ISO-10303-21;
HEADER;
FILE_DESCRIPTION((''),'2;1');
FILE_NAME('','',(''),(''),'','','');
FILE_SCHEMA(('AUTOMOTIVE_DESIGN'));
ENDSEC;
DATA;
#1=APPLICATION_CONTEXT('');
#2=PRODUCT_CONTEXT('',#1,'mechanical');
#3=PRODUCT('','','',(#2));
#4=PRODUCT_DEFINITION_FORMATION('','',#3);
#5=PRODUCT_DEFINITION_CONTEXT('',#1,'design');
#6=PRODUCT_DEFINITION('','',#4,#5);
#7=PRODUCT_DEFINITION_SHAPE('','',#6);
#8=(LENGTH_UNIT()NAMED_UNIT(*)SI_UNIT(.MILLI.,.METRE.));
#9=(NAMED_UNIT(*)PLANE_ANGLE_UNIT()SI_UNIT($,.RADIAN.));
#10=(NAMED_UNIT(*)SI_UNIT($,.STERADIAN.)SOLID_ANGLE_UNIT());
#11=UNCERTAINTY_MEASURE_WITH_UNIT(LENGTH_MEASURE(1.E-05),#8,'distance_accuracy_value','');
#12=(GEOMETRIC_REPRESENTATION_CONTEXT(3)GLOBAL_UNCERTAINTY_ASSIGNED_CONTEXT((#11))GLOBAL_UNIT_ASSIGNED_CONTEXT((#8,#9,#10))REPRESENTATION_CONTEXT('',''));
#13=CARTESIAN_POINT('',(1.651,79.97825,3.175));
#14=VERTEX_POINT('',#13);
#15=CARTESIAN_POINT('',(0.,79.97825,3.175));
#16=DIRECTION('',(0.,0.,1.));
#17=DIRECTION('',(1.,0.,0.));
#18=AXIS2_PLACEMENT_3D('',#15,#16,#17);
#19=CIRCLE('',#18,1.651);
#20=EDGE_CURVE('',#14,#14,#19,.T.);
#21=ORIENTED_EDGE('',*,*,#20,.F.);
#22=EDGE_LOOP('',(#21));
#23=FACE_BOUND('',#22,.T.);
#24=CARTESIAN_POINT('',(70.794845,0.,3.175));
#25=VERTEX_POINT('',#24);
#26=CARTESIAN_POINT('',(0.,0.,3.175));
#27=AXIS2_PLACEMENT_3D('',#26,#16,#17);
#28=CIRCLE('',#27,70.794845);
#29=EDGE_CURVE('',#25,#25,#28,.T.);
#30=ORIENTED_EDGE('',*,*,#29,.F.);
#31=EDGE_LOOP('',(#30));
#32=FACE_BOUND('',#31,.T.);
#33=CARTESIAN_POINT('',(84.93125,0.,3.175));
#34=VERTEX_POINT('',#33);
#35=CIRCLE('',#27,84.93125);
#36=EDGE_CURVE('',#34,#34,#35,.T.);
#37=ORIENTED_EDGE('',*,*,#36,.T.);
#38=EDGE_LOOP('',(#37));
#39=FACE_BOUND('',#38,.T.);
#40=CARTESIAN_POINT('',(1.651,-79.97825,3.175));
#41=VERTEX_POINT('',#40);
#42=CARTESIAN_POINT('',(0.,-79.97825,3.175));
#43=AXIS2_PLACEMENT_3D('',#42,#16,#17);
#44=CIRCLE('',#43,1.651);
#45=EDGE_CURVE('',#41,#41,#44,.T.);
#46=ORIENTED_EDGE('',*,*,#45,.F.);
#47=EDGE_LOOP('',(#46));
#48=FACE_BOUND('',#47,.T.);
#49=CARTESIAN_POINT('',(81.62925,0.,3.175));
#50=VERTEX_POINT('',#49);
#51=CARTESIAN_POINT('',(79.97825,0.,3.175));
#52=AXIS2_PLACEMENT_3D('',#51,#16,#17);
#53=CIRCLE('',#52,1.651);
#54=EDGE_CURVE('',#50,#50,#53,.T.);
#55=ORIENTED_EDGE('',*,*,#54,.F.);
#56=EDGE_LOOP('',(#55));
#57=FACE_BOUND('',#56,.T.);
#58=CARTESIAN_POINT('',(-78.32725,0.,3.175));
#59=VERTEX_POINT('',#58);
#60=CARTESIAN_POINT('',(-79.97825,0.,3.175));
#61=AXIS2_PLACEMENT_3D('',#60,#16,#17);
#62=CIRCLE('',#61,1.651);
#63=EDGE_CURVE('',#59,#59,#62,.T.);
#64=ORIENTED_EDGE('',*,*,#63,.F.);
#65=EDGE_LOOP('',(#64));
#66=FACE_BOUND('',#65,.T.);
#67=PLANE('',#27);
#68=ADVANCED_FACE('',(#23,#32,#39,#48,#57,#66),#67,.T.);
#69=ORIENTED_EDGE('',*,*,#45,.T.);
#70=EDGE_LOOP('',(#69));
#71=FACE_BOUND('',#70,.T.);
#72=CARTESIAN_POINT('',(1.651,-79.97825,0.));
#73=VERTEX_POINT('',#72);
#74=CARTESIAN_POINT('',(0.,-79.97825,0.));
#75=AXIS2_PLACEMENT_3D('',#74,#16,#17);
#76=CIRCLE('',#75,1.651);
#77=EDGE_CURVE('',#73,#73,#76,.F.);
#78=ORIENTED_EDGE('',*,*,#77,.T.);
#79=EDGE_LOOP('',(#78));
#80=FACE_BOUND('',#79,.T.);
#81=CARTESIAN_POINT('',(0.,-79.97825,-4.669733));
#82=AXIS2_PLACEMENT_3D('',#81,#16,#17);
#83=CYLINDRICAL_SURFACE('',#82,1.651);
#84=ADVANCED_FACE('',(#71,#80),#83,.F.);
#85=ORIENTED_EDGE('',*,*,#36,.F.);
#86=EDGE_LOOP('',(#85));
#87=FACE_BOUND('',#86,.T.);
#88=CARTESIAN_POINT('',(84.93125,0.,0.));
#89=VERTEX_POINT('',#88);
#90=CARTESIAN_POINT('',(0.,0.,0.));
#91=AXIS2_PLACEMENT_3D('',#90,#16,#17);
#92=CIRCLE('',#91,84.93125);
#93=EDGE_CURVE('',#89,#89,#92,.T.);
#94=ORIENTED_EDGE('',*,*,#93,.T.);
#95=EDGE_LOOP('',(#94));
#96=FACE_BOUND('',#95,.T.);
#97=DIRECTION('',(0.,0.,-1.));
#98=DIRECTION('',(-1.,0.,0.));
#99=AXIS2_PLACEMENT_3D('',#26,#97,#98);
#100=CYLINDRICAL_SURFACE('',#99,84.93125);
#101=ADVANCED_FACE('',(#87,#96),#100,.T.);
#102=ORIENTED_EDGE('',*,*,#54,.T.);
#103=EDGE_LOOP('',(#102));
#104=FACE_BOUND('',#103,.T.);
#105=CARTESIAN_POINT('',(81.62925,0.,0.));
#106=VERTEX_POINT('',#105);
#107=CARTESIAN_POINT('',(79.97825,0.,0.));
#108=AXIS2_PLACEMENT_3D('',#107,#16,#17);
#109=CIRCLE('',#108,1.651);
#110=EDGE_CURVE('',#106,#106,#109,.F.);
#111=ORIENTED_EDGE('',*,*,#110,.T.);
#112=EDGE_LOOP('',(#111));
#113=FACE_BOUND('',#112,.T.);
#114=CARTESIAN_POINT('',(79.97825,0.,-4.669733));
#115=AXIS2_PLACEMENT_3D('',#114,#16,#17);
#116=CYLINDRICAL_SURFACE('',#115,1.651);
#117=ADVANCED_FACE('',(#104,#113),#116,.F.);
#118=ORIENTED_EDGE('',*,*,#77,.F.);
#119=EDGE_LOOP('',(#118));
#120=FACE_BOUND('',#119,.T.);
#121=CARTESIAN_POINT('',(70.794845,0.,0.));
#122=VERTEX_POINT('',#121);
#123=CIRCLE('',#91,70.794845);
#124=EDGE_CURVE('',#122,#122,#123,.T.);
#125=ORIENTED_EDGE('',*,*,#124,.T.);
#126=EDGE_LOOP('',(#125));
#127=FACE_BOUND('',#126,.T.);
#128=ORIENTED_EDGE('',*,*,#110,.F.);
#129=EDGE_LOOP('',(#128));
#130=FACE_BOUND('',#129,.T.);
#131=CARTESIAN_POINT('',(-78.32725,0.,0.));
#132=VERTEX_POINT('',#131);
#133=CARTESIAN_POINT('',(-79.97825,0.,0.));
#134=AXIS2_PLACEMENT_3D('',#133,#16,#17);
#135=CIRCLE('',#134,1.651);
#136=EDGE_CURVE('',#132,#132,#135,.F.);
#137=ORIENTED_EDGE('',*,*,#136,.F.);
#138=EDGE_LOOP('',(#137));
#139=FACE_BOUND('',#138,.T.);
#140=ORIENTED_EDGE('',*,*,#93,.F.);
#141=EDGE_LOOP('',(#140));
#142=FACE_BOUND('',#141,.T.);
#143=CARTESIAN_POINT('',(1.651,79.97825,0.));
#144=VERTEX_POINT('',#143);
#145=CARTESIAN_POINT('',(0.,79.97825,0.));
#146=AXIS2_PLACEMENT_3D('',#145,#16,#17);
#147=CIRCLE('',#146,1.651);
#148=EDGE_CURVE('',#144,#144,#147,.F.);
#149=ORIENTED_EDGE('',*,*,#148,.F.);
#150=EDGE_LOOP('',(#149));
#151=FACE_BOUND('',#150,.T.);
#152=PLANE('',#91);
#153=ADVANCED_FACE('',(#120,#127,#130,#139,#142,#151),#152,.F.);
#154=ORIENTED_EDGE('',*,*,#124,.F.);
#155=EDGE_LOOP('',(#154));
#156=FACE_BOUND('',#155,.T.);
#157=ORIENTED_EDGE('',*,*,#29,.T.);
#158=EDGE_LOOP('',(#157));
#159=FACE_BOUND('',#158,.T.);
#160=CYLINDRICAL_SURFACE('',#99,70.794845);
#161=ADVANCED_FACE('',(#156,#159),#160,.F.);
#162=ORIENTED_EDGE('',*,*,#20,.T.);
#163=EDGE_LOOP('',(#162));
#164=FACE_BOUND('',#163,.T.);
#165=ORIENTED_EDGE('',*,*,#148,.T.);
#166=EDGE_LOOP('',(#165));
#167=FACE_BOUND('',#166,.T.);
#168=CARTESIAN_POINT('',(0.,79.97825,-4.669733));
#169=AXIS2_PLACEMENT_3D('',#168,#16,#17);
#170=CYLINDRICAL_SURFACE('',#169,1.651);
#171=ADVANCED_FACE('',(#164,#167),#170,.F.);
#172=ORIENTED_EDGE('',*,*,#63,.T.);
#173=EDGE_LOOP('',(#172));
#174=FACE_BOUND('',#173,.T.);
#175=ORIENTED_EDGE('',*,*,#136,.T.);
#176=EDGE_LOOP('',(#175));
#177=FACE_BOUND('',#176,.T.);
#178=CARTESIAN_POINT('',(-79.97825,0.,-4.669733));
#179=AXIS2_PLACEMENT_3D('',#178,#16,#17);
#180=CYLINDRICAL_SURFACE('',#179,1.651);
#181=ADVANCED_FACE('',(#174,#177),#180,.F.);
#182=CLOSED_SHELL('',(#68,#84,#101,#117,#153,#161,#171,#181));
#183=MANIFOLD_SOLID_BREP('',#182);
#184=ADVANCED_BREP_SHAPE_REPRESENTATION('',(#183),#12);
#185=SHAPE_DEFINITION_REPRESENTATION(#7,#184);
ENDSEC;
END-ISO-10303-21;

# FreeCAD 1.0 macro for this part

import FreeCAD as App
import Part
import Sketcher
Q = App.Units.Quantity

doc = App.newDocument("Part")
body = doc.addObject("PartDesign::Body", "Body")

# Sketch on XY plane
sketch1 = body.newObject("Sketcher::SketchObject", "Sketch")
sketch1.AttachmentSupport = (doc.getObject("XY_Plane"), [""])
sketch1.MapMode = "FlatFace"
sketch1.addGeometry(Part.Circle(App.Vector(0, 0, 0), App.Vector(0, 0, 1), 85), False)
sketch1.addGeometry(Part.Circle(App.Vector(0, 0, 0), App.Vector(0, 0, 1), 71), False)
sketch1.addConstraint(Sketcher.Constraint("Coincident", 0, 3, -1, 1))
sketch1.addConstraint(Sketcher.Constraint("Coincident", 1, 3, -1, 1))
sketch1.addConstraint(Sketcher.Constraint("Diameter", 0, Q("6.6875 in")))
sketch1.addConstraint(Sketcher.Constraint("Diameter", 1, Q("141.58969 mm")))
pad1 = body.newObject("PartDesign::Pad", "Pad")
pad1.Profile = sketch1
pad1.Length = Q("0.125 in")

# Sketch on XY plane
sketch2 = body.newObject("Sketcher::SketchObject", "Sketch001")
sketch2.AttachmentSupport = (doc.getObject("XY_Plane"), [""])
sketch2.MapMode = "FlatFace"
sketch2.AttachmentOffset = App.Placement(App.Vector(0, 0, 0.125 * 25.4), App.Rotation())
sketch2.addGeometry(Part.Circle(App.Vector(0, -80, 0), App.Vector(0, 0, 1), 1.7), False)
sketch2.addGeometry(Part.Circle(App.Vector(-80, 0, 0), App.Vector(0, 0, 1), 1.7), False)
sketch2.addGeometry(Part.Circle(App.Vector(0, 80, 0), App.Vector(0, 0, 1), 1.7), False)
sketch2.addGeometry(Part.Circle(App.Vector(80, 0, 0), App.Vector(0, 0, 1), 1.7), False)
sketch2.addConstraint(Sketcher.Constraint("Equal", 0, 1))
sketch2.addConstraint(Sketcher.Constraint("Equal", 1, 2))
sketch2.addConstraint(Sketcher.Constraint("Equal", 2, 3))
sketch2.addConstraint(Sketcher.Constraint("Symmetric", 0, 3, 2, 3, -1, 1))
sketch2.addConstraint(Sketcher.Constraint("Symmetric", 1, 3, 3, 3, -1, 1))
sketch2.addConstraint(Sketcher.Constraint("PointOnObject", 0, 3, -2))
sketch2.addConstraint(Sketcher.Constraint("PointOnObject", 1, 3, -1))
sketch2.addConstraint(Sketcher.Constraint("Diameter", 0, Q("0.13 in")))
sketch2.addConstraint(Sketcher.Constraint("DistanceY", 0, 3, 2, 3, Q("6.2975 in")))
sketch2.addConstraint(Sketcher.Constraint("DistanceX", 1, 3, 3, 3, Q("6.2975 in")))
pocket1 = body.newObject("PartDesign::Pocket", "Pocket")
pocket1.Profile = sketch2
pocket1.Length = Q("0.125 in")

doc.recompute()
